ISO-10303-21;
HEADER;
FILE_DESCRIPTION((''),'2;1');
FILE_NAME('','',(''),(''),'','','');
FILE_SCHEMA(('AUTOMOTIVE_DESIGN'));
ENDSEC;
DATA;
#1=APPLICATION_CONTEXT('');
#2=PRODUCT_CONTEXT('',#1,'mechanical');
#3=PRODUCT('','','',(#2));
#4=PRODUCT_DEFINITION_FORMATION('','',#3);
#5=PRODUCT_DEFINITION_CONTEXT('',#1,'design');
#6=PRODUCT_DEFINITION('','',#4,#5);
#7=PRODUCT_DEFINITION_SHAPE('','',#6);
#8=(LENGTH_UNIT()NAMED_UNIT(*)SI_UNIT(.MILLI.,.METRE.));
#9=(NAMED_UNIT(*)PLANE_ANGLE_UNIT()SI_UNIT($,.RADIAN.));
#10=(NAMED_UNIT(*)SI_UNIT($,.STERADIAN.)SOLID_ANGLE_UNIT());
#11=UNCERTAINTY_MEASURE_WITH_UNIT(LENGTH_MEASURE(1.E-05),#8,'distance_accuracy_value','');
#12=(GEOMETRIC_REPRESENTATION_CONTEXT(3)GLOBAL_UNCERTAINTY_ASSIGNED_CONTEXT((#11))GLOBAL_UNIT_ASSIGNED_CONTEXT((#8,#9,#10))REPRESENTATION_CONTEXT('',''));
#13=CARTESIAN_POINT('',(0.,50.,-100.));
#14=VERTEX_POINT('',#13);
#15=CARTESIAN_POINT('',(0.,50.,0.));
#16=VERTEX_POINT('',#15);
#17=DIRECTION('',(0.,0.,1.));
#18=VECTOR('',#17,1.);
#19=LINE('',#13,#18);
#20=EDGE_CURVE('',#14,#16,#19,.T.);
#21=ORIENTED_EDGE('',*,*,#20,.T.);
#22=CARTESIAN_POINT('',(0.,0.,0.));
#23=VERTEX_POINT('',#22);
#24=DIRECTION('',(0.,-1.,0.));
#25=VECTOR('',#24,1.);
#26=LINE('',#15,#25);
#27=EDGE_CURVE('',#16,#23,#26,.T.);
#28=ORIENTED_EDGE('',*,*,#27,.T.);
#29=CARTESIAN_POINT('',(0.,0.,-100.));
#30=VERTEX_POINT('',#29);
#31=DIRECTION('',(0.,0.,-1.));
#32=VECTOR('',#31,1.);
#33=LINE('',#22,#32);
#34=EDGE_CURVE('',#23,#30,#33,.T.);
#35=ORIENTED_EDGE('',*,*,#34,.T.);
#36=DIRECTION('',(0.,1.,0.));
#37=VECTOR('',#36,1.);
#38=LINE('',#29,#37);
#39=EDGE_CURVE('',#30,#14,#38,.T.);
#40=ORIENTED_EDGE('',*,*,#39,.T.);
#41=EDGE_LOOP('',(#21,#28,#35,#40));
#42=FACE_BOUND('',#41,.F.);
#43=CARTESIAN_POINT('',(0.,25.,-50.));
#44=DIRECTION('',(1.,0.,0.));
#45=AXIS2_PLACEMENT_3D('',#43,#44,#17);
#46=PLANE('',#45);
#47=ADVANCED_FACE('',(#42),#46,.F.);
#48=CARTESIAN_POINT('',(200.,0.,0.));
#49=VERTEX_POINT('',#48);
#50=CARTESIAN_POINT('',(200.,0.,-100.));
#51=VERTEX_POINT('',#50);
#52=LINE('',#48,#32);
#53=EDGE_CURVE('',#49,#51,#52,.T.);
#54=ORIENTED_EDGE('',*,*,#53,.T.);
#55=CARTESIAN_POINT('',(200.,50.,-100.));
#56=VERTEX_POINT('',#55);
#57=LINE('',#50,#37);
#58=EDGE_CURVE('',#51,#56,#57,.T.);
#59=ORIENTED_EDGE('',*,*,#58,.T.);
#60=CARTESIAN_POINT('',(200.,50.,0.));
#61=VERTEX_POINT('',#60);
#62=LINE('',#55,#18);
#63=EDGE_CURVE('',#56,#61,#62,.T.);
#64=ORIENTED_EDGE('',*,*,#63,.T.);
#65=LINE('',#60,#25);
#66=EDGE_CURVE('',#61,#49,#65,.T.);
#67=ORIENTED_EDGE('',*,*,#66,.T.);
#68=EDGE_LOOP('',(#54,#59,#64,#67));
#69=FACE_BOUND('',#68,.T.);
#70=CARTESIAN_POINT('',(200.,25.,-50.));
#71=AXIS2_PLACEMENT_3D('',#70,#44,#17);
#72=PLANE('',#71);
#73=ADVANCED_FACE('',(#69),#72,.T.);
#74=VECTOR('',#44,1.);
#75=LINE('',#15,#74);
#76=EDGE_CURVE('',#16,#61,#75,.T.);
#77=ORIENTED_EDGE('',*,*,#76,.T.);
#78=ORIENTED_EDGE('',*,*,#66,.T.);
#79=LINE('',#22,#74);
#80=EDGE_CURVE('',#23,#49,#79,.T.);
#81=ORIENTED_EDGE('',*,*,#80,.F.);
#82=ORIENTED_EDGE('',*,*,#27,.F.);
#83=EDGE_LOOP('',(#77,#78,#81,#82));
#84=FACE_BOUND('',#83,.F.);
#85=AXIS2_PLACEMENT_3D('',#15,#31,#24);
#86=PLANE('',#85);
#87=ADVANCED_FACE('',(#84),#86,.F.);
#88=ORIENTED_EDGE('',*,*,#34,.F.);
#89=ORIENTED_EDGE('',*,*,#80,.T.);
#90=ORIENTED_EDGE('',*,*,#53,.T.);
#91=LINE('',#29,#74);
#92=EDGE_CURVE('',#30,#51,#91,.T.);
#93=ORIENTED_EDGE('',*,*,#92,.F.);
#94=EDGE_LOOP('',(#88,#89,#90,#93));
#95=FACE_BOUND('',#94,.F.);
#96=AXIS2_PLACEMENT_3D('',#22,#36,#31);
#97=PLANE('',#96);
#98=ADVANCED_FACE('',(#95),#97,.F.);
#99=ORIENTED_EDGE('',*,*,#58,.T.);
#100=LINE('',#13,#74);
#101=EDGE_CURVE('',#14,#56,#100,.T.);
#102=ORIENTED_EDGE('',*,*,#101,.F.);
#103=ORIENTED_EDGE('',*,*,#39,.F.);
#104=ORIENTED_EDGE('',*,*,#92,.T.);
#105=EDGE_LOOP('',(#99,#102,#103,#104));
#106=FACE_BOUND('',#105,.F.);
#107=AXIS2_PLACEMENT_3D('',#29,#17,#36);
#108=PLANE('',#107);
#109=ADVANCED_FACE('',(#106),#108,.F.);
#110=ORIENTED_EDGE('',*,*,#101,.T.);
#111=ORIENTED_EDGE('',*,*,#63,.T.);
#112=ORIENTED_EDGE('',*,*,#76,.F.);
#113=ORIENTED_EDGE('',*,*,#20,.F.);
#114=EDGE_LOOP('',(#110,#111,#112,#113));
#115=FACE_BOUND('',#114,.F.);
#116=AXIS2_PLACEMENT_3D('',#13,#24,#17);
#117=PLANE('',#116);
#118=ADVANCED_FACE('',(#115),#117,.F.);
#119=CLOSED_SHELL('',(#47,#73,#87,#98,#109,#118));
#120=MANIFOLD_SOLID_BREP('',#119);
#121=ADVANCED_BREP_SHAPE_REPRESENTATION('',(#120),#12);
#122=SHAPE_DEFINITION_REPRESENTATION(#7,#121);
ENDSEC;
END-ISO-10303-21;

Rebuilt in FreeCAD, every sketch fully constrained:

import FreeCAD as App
import Part
import Sketcher


def add_polygon(sketch, points):
    """Adds a closed chain of lines whose ends are joined by coincident constraints."""
    first, n = sketch.GeometryCount, len(points)
    for a, b in zip(points, points[1:] + points[:1]):
        sketch.addGeometry(Part.LineSegment(App.Vector(*a, 0), App.Vector(*b, 0)), False)
    for i in range(n):
        sketch.addConstraint(Sketcher.Constraint("Coincident", first + i, 2, first + (i + 1) % n, 1))

doc = App.newDocument("Part")
body = doc.addObject("PartDesign::Body", "Body")

# Sketch on YZ plane
sketch1 = body.newObject("Sketcher::SketchObject", "Sketch")
sketch1.AttachmentSupport = (doc.getObject("YZ_Plane"), [""])
sketch1.MapMode = "FlatFace"
add_polygon(sketch1, [(0, 0), (0, -100), (50, -100), (50, 0)])  # lines 0-3
sketch1.addConstraint(Sketcher.Constraint("Vertical", 0))
sketch1.addConstraint(Sketcher.Constraint("Horizontal", 1))
sketch1.addConstraint(Sketcher.Constraint("Vertical", 2))
sketch1.addConstraint(Sketcher.Constraint("Horizontal", 3))
sketch1.addConstraint(Sketcher.Constraint("Coincident", 3, 2, -1, 1))
sketch1.addConstraint(Sketcher.Constraint("DistanceX", 1, 1, 1, 2, 50.0))
sketch1.addConstraint(Sketcher.Constraint("DistanceY", 0, 2, 0, 1, 100.0))
pad1 = body.newObject("PartDesign::Pad", "Pad")
pad1.Profile = sketch1
pad1.Length = 200

doc.recompute()
